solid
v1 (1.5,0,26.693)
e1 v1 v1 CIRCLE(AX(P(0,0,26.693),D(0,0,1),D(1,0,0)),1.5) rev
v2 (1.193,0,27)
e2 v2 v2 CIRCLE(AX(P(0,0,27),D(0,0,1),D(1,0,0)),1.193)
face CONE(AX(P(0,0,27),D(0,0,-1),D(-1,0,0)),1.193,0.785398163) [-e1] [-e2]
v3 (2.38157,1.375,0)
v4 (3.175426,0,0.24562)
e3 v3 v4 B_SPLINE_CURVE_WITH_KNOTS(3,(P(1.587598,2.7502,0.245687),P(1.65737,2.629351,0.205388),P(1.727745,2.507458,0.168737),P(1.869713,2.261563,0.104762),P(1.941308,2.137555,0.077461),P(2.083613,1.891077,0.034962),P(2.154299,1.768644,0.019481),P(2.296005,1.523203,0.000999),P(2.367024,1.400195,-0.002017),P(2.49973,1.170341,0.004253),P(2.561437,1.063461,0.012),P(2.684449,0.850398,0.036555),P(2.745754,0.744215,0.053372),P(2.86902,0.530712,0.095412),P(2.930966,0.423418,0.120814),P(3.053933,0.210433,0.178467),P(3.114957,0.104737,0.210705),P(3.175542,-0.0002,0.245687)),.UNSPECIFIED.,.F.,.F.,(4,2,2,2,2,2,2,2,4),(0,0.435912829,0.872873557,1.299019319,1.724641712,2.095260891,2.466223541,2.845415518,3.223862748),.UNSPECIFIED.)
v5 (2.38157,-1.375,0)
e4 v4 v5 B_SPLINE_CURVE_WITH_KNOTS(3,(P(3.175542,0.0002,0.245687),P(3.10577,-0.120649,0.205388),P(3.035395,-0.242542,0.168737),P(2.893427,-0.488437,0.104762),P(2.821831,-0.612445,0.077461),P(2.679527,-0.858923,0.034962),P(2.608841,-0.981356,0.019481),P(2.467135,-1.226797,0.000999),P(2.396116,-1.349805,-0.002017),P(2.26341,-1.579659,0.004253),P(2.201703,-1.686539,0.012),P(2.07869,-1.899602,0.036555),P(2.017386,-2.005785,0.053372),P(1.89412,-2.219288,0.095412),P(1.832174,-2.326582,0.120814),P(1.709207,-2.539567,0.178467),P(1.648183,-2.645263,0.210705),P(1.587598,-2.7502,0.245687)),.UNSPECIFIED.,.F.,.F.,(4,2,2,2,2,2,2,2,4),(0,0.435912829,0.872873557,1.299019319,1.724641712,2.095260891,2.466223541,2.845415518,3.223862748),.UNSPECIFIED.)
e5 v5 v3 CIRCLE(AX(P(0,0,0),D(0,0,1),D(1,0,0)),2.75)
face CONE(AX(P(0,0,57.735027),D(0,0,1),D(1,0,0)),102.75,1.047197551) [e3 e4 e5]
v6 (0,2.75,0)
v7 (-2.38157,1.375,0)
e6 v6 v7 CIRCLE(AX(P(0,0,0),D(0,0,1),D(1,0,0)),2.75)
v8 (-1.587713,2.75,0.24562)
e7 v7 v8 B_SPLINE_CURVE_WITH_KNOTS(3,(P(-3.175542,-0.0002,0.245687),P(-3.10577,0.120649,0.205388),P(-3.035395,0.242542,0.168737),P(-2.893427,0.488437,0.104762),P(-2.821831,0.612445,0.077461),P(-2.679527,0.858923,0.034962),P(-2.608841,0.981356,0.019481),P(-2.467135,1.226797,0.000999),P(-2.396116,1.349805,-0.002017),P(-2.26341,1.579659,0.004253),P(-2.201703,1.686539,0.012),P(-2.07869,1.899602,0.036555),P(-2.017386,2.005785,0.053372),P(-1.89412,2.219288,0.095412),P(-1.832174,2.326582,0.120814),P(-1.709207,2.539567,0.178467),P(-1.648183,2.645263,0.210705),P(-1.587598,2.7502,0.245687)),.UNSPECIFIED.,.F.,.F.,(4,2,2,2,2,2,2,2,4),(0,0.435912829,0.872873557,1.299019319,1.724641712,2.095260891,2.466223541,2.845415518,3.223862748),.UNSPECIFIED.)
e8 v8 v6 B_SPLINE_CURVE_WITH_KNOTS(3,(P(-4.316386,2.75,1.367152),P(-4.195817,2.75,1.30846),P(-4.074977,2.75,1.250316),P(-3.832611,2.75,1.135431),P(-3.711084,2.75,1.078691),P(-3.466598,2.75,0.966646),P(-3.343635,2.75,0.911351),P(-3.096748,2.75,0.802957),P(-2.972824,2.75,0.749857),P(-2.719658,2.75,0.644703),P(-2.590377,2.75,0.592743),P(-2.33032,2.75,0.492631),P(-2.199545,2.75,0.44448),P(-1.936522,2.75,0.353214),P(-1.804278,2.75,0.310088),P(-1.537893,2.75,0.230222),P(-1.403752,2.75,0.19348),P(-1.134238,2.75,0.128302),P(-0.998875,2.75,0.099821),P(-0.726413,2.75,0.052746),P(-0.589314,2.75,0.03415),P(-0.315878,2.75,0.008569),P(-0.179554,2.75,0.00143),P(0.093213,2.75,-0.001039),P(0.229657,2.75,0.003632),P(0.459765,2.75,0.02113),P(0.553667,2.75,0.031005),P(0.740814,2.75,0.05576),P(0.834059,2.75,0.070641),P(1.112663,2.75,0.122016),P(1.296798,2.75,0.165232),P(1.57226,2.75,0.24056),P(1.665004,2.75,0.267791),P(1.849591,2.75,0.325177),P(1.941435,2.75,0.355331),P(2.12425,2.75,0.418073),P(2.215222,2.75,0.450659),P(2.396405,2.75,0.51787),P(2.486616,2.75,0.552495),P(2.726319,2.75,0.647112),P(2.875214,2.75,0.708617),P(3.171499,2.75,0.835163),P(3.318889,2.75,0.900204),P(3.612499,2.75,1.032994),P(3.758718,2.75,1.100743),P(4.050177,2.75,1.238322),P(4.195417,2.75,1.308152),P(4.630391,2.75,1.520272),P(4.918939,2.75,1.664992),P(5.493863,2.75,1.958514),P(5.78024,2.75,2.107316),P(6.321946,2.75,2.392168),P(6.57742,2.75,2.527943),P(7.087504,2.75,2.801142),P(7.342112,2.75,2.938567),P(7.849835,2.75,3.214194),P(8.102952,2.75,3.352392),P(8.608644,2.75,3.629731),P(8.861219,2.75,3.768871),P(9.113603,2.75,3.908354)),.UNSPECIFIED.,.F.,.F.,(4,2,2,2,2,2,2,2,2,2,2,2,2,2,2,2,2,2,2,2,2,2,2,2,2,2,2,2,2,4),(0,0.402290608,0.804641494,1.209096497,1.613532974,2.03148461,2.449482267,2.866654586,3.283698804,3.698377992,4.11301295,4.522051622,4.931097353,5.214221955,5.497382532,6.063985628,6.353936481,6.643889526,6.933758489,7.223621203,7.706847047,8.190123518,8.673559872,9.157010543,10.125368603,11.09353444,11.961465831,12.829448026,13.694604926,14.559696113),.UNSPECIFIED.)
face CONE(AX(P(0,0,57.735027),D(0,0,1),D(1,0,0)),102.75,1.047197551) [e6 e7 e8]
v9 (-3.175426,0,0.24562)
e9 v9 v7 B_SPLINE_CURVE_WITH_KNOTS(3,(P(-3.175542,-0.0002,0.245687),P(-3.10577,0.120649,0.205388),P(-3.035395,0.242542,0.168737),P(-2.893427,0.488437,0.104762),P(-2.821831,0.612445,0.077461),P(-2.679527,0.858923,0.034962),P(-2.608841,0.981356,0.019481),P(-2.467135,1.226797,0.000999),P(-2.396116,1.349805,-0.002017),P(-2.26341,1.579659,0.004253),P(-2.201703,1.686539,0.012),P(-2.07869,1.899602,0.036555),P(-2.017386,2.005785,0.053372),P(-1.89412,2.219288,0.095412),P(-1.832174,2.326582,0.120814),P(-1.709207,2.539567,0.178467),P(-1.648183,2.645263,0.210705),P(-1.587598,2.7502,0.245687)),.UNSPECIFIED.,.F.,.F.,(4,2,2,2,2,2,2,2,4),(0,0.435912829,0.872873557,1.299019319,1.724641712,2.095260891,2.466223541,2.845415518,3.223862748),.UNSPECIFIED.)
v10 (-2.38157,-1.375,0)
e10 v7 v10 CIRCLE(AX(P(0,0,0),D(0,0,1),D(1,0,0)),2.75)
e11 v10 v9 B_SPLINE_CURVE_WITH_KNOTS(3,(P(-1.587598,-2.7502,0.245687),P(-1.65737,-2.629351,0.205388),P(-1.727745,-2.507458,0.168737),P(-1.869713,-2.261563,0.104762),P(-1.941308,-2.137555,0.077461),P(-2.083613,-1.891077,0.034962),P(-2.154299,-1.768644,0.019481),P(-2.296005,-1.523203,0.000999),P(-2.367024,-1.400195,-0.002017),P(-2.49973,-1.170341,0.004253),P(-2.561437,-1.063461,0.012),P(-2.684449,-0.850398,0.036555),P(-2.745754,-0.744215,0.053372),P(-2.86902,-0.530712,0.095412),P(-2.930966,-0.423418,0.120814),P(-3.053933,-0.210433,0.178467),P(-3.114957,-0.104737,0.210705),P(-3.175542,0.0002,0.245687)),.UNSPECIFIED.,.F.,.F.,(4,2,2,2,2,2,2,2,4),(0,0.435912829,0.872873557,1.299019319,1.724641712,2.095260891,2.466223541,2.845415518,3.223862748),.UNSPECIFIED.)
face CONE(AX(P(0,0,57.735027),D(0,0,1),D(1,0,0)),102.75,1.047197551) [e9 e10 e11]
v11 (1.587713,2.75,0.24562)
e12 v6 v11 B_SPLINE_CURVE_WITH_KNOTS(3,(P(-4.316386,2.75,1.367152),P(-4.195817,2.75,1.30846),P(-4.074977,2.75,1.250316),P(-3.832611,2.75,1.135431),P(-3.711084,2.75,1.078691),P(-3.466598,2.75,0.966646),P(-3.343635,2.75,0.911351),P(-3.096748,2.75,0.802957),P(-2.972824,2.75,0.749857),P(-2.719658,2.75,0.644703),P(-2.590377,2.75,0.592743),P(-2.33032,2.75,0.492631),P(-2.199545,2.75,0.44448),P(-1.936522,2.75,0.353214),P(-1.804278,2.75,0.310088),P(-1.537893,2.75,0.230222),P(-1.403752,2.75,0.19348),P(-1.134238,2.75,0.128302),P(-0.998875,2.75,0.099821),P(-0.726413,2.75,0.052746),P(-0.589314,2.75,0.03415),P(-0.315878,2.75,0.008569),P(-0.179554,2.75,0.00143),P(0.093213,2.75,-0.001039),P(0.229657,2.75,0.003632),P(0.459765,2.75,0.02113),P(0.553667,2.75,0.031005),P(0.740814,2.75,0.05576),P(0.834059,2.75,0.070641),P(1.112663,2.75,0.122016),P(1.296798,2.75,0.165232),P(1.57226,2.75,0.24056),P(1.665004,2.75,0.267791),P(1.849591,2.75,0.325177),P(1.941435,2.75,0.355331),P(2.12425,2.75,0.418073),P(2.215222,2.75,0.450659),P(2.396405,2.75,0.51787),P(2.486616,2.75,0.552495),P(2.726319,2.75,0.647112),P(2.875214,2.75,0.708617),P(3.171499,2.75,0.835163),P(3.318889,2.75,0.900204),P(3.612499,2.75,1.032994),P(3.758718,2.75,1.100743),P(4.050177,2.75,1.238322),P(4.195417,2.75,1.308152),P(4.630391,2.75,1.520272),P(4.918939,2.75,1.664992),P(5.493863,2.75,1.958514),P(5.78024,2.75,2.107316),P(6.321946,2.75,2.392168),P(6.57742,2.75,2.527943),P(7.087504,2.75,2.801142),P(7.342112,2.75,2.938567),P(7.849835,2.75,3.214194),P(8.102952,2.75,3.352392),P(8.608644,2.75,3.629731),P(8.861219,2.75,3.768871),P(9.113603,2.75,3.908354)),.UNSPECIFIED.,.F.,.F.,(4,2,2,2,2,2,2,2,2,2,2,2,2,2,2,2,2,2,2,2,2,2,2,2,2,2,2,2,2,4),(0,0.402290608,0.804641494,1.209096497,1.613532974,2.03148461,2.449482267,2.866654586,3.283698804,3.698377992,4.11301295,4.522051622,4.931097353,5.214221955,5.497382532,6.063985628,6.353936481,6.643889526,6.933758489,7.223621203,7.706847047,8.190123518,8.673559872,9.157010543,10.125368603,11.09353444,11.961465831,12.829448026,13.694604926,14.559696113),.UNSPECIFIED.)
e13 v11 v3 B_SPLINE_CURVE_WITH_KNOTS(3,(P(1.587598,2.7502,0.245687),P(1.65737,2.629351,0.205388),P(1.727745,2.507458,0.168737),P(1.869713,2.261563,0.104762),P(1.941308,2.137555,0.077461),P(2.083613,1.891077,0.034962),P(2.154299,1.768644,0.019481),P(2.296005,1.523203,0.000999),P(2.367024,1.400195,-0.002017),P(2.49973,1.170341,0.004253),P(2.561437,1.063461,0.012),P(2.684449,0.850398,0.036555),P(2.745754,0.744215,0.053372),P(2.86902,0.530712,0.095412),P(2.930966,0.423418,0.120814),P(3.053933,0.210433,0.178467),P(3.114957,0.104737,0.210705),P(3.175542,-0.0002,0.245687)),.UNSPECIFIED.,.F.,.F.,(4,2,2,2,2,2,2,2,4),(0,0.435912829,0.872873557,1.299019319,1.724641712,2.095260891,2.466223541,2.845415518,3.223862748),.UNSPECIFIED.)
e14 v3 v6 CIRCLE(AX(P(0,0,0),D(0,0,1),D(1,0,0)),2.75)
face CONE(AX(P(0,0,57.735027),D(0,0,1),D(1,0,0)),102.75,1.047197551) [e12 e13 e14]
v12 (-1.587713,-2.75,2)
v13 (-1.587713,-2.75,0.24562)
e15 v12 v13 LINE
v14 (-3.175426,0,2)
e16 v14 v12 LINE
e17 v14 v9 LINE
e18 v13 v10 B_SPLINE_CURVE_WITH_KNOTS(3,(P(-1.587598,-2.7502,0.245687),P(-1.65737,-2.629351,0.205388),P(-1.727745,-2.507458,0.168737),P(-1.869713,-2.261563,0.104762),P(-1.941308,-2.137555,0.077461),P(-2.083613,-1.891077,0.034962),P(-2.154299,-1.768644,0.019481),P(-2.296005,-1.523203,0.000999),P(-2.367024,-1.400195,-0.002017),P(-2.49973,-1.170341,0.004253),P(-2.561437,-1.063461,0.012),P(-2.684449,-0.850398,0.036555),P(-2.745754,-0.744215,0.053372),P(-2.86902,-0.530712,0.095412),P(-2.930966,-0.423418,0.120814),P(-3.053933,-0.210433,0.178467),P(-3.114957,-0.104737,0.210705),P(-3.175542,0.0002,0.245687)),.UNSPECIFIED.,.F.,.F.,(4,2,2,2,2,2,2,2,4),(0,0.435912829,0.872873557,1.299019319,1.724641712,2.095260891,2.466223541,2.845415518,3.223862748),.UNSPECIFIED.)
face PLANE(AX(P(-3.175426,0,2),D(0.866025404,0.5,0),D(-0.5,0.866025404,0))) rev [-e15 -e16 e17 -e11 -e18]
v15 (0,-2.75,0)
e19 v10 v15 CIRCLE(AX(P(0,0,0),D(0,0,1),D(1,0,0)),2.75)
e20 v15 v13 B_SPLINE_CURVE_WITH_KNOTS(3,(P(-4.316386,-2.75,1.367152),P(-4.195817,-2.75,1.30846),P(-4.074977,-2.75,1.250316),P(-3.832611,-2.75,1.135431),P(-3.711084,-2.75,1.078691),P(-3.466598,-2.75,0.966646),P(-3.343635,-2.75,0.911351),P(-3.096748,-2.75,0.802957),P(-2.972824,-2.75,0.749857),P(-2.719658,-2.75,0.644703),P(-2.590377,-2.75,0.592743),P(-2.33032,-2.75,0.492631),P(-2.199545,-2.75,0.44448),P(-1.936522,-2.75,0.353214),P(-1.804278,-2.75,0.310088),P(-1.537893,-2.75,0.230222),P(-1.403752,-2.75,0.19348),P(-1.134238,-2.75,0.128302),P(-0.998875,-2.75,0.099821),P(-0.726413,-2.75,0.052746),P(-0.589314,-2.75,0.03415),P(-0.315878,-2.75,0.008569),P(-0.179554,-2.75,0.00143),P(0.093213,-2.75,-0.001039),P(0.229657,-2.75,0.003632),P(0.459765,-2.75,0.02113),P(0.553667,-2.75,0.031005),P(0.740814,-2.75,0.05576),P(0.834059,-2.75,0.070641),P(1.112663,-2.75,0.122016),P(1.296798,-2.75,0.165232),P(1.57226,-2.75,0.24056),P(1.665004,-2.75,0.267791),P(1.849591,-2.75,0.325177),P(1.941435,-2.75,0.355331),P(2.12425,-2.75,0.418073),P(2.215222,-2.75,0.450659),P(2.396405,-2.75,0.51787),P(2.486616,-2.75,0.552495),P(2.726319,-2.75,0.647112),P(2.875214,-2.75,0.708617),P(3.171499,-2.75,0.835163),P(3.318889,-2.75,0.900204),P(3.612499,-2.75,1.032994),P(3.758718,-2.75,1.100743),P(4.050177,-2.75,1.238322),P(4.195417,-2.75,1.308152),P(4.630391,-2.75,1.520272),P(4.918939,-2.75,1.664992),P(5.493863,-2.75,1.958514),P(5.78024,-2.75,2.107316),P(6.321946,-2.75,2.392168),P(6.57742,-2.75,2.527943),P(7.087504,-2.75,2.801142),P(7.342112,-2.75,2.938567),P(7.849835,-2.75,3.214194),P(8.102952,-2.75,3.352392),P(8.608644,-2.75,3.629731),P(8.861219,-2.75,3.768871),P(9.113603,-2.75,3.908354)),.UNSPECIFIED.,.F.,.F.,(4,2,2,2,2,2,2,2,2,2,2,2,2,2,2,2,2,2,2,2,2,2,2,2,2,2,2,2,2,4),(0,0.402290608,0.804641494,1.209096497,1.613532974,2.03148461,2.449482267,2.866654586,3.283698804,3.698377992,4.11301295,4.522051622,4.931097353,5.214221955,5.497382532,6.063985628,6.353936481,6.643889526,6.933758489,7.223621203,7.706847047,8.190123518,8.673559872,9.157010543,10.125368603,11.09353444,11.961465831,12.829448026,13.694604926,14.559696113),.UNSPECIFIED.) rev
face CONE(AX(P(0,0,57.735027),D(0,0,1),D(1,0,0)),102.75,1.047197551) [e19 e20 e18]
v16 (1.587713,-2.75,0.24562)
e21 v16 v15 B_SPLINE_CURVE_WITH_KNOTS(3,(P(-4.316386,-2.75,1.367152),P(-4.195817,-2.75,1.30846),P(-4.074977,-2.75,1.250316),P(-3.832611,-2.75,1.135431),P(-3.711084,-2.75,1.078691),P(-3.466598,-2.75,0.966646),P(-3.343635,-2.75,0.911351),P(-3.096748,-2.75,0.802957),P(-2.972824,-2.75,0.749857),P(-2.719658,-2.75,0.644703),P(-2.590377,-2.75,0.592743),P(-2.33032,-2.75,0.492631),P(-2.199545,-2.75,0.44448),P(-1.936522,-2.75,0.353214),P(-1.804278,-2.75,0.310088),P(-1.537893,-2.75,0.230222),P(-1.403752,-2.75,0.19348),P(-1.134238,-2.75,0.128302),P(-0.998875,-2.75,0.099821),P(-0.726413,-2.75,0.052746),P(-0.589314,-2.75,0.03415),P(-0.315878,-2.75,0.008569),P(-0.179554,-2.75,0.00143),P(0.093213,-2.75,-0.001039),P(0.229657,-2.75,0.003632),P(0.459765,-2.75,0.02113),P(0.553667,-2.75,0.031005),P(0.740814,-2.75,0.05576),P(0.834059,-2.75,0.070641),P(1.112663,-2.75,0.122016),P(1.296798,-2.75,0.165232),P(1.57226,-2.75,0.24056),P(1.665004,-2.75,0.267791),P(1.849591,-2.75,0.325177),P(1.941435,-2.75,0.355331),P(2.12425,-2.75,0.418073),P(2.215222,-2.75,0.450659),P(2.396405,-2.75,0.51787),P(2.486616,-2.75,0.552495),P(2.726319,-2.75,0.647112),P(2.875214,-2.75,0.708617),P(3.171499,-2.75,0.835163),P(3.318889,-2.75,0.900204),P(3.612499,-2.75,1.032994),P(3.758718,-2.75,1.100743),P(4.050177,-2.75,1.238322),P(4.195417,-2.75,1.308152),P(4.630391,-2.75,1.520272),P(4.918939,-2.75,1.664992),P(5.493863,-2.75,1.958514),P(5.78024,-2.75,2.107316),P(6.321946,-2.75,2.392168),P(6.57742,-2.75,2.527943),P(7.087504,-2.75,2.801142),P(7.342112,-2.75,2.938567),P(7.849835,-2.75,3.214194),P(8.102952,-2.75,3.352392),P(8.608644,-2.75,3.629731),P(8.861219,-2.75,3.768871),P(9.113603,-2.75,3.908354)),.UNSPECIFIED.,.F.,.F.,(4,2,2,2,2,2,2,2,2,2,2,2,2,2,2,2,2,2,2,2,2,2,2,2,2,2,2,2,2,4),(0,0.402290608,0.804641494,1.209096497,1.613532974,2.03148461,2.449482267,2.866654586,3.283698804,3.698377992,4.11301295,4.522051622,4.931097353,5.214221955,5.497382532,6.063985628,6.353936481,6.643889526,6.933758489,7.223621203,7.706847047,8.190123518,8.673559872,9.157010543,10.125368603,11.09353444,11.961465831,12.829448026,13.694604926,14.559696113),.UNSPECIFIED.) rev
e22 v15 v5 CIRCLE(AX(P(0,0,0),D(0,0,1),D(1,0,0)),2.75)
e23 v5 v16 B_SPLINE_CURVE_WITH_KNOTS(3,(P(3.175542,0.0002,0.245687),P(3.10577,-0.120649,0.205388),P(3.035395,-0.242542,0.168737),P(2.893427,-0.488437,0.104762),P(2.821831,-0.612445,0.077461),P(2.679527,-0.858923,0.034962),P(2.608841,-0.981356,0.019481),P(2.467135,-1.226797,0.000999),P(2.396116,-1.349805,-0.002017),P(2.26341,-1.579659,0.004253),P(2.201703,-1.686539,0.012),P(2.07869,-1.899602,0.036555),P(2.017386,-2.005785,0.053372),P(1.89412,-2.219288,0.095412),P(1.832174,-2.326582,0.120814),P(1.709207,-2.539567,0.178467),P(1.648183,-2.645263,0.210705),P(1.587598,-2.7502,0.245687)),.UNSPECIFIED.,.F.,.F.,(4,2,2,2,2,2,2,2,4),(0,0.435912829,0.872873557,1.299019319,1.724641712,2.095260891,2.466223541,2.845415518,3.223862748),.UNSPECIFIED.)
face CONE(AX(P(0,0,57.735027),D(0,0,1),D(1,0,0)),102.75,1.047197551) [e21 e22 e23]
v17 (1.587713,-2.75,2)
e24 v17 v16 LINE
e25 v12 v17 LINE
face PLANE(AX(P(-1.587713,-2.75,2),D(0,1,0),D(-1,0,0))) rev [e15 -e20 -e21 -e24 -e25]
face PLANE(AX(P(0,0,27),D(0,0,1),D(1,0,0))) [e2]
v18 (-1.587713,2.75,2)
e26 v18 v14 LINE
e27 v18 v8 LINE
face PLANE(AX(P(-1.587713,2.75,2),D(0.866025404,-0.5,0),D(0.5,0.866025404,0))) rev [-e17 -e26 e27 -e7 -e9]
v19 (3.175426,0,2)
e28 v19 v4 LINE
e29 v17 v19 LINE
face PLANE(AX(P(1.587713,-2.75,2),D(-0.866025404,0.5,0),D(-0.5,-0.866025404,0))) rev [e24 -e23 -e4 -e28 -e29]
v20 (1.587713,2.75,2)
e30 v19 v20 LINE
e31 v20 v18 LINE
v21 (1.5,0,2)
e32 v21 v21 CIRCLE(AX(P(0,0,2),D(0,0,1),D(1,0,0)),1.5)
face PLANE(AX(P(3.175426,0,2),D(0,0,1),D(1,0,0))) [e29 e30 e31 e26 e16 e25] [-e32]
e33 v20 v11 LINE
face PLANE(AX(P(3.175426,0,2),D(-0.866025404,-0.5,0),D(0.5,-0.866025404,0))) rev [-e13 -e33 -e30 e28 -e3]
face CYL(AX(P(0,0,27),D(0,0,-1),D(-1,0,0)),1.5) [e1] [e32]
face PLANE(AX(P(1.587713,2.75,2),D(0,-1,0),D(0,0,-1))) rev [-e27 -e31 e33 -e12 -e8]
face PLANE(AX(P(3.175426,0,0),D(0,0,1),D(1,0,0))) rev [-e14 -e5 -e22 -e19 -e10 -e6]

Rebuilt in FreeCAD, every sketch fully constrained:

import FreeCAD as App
import Part
import Sketcher
from FreeCAD import Vector
Q = App.Units.Quantity


def edges_at(feature, points):
    """Names of the edges that pass closest to the given points."""
    edges = feature.Shape.Edges
    near = lambda p: min(range(len(edges)), key=lambda i: edges[i].distToShape(Part.Vertex(*p))[0])
    return sorted({f"Edge{near(p) + 1}" for p in points})

doc = App.newDocument("Part")
body = doc.addObject("PartDesign::Body", "Body")

# Sketch on XY plane
sketch1 = body.newObject("Sketcher::SketchObject", "Sketch")
sketch1.AttachmentSupport = (doc.getObject("XY_Plane"), [""])
sketch1.MapMode = "FlatFace"
sketch1.addGeometry([
    Part.LineSegment(Vector(3.2, 0, 0), Vector(1.6, 2.8, 0)),  # 0
    Part.LineSegment(Vector(1.6, 2.8, 0), Vector(-1.6, 2.8, 0)),  # 1
    Part.LineSegment(Vector(-1.6, 2.8, 0), Vector(-3.2, 0, 0)),  # 2
    Part.LineSegment(Vector(-3.2, 0, 0), Vector(-1.6, -2.8, 0)),  # 3
    Part.LineSegment(Vector(-1.6, -2.8, 0), Vector(1.6, -2.8, 0)),  # 4
    Part.LineSegment(Vector(1.6, -2.8, 0), Vector(3.2, 0, 0)),  # 5
], False)
sketch1.addConstraint([
    Sketcher.Constraint("Coincident", 0, 2, 1, 1),
    Sketcher.Constraint("Coincident", 1, 2, 2, 1),
    Sketcher.Constraint("Coincident", 2, 2, 3, 1),
    Sketcher.Constraint("Coincident", 3, 2, 4, 1),
    Sketcher.Constraint("Coincident", 4, 2, 5, 1),
    Sketcher.Constraint("Coincident", 5, 2, 0, 1),
    Sketcher.Constraint("Horizontal", 1),
    Sketcher.Constraint("Horizontal", 4),
    Sketcher.Constraint("Symmetric", 0, 2, 3, 2, -1, 1),
    Sketcher.Constraint("Symmetric", 2, 2, 5, 2, -1, 1),
    Sketcher.Constraint("PointOnObject", 2, 2, -1),
    Sketcher.Constraint("Parallel", 2, 5),
    Sketcher.Constraint("Vertical", 1, 2, 3, 2),
    Sketcher.Constraint("Angle", 0, Q("120 deg")),
    Sketcher.Constraint("DistanceY", 3, 2, 1, 2, Q("5.5 mm")),
    Sketcher.Constraint("DistanceX", 1, 2, 1, 1, Q("3.175426 mm")),
])
pad1 = body.newObject("PartDesign::Pad", "Pad")
pad1.Profile = sketch1
pad1.Length = 2

# Sketch on XY plane
sketch2 = body.newObject("Sketcher::SketchObject", "Sketch001")
sketch2.AttachmentSupport = (doc.getObject("XY_Plane"), [""])
sketch2.MapMode = "FlatFace"
sketch2.AttachmentOffset = App.Placement(Vector(0, 0, 2), App.Rotation())
sketch2.addGeometry(Part.Circle(Vector(0, 0, 0), Vector(0, 0, 1), 1.5), False)
sketch2.addConstraint([
    Sketcher.Constraint("Coincident", 0, 3, -1, 1),
    Sketcher.Constraint("Diameter", 0, Q("3 mm")),
])
pad2 = body.newObject("PartDesign::Pad", "Pad001")
pad2.Profile = sketch2
pad2.Length = 25

# Sketch on YZ plane
sketch3 = body.newObject("Sketcher::SketchObject", "Sketch002")
sketch3.AttachmentSupport = (doc.getObject("YZ_Plane"), [""])
sketch3.MapMode = "FlatFace"
sketch3.addGeometry([
    Part.LineSegment(Vector(3, 0, 0), Vector(103, 0, 0)),
    Part.LineSegment(Vector(103, 0, 0), Vector(103, 58, 0)),
    Part.LineSegment(Vector(103, 58, 0), Vector(3, 0, 0)),
], False)
sketch3.addConstraint([
    Sketcher.Constraint("Coincident", 0, 2, 1, 1),
    Sketcher.Constraint("Coincident", 1, 2, 2, 1),
    Sketcher.Constraint("Coincident", 2, 2, 0, 1),
    Sketcher.Constraint("Horizontal", 0),
    Sketcher.Constraint("Vertical", 1),
    Sketcher.Constraint("PointOnObject", 0, 2, -1),
    Sketcher.Constraint("DistanceX", 0, 1, 0, 2, Q("100 mm")),
    Sketcher.Constraint("Angle", 2, Q("-150 deg")),
    Sketcher.Constraint("DistanceX", -1, 1, 0, 2, Q("102.75 mm")),
])
groove = body.newObject("PartDesign::Groove", "Groove")
groove.Profile = sketch3
groove.ReferenceAxis = (sketch3, ["V_Axis"])
groove.Angle = 360
doc.recompute()

chamfer = body.newObject("PartDesign::Chamfer", "Chamfer")
chamfer.Base = (groove, edges_at(groove, [(-1.5, 0, 27)]))
chamfer.Size = 0.307

doc.recompute()
